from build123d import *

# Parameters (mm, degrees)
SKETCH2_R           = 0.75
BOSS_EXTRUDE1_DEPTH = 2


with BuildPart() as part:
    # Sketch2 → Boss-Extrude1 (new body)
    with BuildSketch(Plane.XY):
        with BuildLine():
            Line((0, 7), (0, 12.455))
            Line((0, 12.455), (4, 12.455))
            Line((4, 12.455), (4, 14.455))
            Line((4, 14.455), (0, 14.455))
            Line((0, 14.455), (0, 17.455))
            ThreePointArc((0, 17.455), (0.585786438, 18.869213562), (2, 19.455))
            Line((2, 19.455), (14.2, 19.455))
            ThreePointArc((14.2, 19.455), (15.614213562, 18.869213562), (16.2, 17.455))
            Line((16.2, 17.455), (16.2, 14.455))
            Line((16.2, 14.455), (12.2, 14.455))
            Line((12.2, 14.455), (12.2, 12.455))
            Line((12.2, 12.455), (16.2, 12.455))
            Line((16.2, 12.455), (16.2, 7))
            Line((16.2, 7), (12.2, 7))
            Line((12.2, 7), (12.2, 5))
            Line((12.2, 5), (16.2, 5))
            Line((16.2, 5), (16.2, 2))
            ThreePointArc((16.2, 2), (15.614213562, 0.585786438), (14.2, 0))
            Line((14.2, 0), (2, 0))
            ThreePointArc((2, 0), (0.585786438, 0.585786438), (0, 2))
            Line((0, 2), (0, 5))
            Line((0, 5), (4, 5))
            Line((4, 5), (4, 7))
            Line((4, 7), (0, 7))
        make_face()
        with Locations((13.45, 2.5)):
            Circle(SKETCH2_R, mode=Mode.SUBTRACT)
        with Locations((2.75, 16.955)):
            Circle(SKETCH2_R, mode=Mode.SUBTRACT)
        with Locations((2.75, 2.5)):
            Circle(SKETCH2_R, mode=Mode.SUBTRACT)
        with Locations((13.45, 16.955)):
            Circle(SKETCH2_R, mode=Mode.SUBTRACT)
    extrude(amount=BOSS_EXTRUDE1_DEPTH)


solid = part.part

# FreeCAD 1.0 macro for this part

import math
import FreeCAD as App
import Part
import Sketcher

V = App.Vector

doc = App.newDocument("Part")
params = doc.addObject("Spreadsheet::Sheet", "Params")
for row, (alias, value) in enumerate([
    ("sketch1_radius", "2 mm"),
    ("sketch1_diameter", "1.5 mm"),
    ("sketch1_width", "4 mm"),
    ("sketch1_height", "2 mm"),
    ("sketch1_height2", "3 mm"),
    ("pad1_length", "2 mm"),
], start=1):
    params.set(f"A{row}", alias)
    params.set(f"B{row}", "=" + value)
    params.setAlias(f"B{row}", alias)

body = doc.addObject("PartDesign::Body", "Body")

sketch1 = body.newObject("Sketcher::SketchObject", "Sketch")
sketch1.AttachmentSupport = (doc.getObject("XY_Plane"), [""])
sketch1.MapMode = "FlatFace"
sketch1.addGeometry([
    Part.LineSegment(V(0, 12.5, 0), V(0, 7, 0)),
    Part.LineSegment(V(0, 7, 0), V(4, 7, 0)),
    Part.LineSegment(V(4, 7, 0), V(4, 5, 0)),
    Part.LineSegment(V(4, 5, 0), V(0, 5, 0)),
    Part.LineSegment(V(0, 5, 0), V(0, 2, 0)),
    Part.ArcOfCircle(Part.Circle(V(2, 2, 0), V(0, 0, 1), 2), math.radians(-180), math.radians(-90)),
    Part.LineSegment(V(2, 0, 0), V(14.2, 0, 0)),
    Part.ArcOfCircle(Part.Circle(V(14.2, 2, 0), V(0, 0, 1), 2), math.radians(-90), math.radians(0)),
    Part.LineSegment(V(16.2, 2, 0), V(16.2, 5, 0)),
    Part.LineSegment(V(16.2, 5, 0), V(12.2, 5, 0)),
    Part.LineSegment(V(12.2, 5, 0), V(12.2, 7, 0)),
    Part.LineSegment(V(12.2, 7, 0), V(16.2, 7, 0)),
    Part.LineSegment(V(16.2, 7, 0), V(16.2, 12.5, 0)),
    Part.LineSegment(V(16.2, 12.5, 0), V(12.2, 12.5, 0)),
    Part.LineSegment(V(12.2, 12.5, 0), V(12.2, 14.5, 0)),
    Part.LineSegment(V(12.2, 14.5, 0), V(16.2, 14.5, 0)),
    Part.LineSegment(V(16.2, 14.5, 0), V(16.2, 17.5, 0)),
    Part.ArcOfCircle(Part.Circle(V(14.2, 17.5, 0), V(0, 0, 1), 2), math.radians(0), math.radians(90)),
    Part.LineSegment(V(14.2, 19.5, 0), V(2, 19.5, 0)),
    Part.ArcOfCircle(Part.Circle(V(2, 17.5, 0), V(0, 0, 1), 2), math.radians(90), math.radians(180)),
    Part.LineSegment(V(0, 17.5, 0), V(0, 14.5, 0)),
    Part.LineSegment(V(0, 14.5, 0), V(4, 14.5, 0)),
    Part.LineSegment(V(4, 14.5, 0), V(4, 12.5, 0)),
    Part.LineSegment(V(4, 12.5, 0), V(0, 12.5, 0)),
    Part.Circle(V(13.4, 2.5, 0), V(0, 0, 1), 0.8),
    Part.Circle(V(2.8, 2.5, 0), V(0, 0, 1), 0.8),
    Part.Circle(V(13.4, 17, 0), V(0, 0, 1), 0.8),
    Part.Circle(V(2.8, 17, 0), V(0, 0, 1), 0.8),
], False)
sketch1.addConstraint([
    Sketcher.Constraint("Coincident", 0, 2, 1, 1),
    Sketcher.Constraint("Coincident", 1, 2, 2, 1),
    Sketcher.Constraint("Coincident", 2, 2, 3, 1),
    Sketcher.Constraint("Coincident", 3, 2, 4, 1),
    Sketcher.Constraint("Tangent", 4, 2, 5, 1),
    Sketcher.Constraint("Tangent", 5, 2, 6, 1),
    Sketcher.Constraint("Tangent", 6, 2, 7, 1),
    Sketcher.Constraint("Tangent", 7, 2, 8, 1),
    Sketcher.Constraint("Coincident", 8, 2, 9, 1),
    Sketcher.Constraint("Coincident", 9, 2, 10, 1),
    Sketcher.Constraint("Coincident", 10, 2, 11, 1),
    Sketcher.Constraint("Coincident", 11, 2, 12, 1),
    Sketcher.Constraint("Coincident", 12, 2, 13, 1),
    Sketcher.Constraint("Coincident", 13, 2, 14, 1),
    Sketcher.Constraint("Coincident", 14, 2, 15, 1),
    Sketcher.Constraint("Coincident", 15, 2, 16, 1),
    Sketcher.Constraint("Tangent", 16, 2, 17, 1),
    Sketcher.Constraint("Tangent", 17, 2, 18, 1),
    Sketcher.Constraint("Tangent", 18, 2, 19, 1),
    Sketcher.Constraint("Tangent", 19, 2, 20, 1),
    Sketcher.Constraint("Coincident", 20, 2, 21, 1),
    Sketcher.Constraint("Coincident", 21, 2, 22, 1),
    Sketcher.Constraint("Coincident", 22, 2, 23, 1),
    Sketcher.Constraint("Coincident", 23, 2, 0, 1),
    Sketcher.Constraint("Vertical", 0),
    Sketcher.Constraint("Horizontal", 1),
    Sketcher.Constraint("Vertical", 2),
    Sketcher.Constraint("Horizontal", 3),
    Sketcher.Constraint("Vertical", 4),
    Sketcher.Constraint("Horizontal", 6),
    Sketcher.Constraint("Vertical", 8),
    Sketcher.Constraint("Horizontal", 9),
    Sketcher.Constraint("Vertical", 10),
    Sketcher.Constraint("Horizontal", 11),
    Sketcher.Constraint("Vertical", 12),
    Sketcher.Constraint("Horizontal", 13),
    Sketcher.Constraint("Vertical", 14),
    Sketcher.Constraint("Horizontal", 15),
    Sketcher.Constraint("Vertical", 16),
    Sketcher.Constraint("Horizontal", 18),
    Sketcher.Constraint("Vertical", 20),
    Sketcher.Constraint("Horizontal", 21),
    Sketcher.Constraint("Vertical", 22),
    Sketcher.Constraint("Horizontal", 23),
    Sketcher.Constraint("Equal", 5, 7),
    Sketcher.Constraint("Equal", 7, 17),
    Sketcher.Constraint("Equal", 17, 19),
    Sketcher.Constraint("Equal", 24, 25),
    Sketcher.Constraint("Equal", 25, 26),
    Sketcher.Constraint("Equal", 26, 27),
    Sketcher.Constraint("PointOnObject", 0, 2, -2),
    Sketcher.Constraint("PointOnObject", 3, 2, -2),
    Sketcher.Constraint("PointOnObject", 5, 2, -1),
    Sketcher.Constraint("PointOnObject", 19, 2, -2),
    Sketcher.Constraint("Horizontal", 24, 3, 25, 3),
    Sketcher.Constraint("Horizontal", 26, 3, 27, 3),
    Sketcher.Constraint("Horizontal", 3, 2, 8, 2),
    Sketcher.Constraint("Horizontal", 1, 2, 10, 2),
    Sketcher.Constraint("Horizontal", 15, 2, 20, 2),
    Sketcher.Constraint("Horizontal", 13, 2, 22, 2),
    Sketcher.Constraint("Vertical", 7, 3, 17, 3),
    Sketcher.Constraint("Vertical", 24, 3, 26, 3),
    Sketcher.Constraint("Vertical", 25, 3, 27, 3),
    Sketcher.Constraint("Vertical", 8, 2, 11, 2),
    Sketcher.Constraint("Vertical", 10, 2, 13, 2),
    Sketcher.Constraint("Vertical", 2, 2, 21, 2),
    Sketcher.Constraint("Equal", 3, 9),
    Sketcher.Constraint("Equal", 10, 14),
    Sketcher.Constraint("Equal", 8, 16),
    Sketcher.Constraint("Radius", 5, 2.0),
    Sketcher.Constraint("Diameter", 24, 1.5),
    Sketcher.Constraint("DistanceX", 1, 1, 1, 2, 4.0),
    Sketcher.Constraint("DistanceY", 2, 2, 2, 1, 2.0),
    Sketcher.Constraint("DistanceY", 4, 2, 4, 1, 3.0),
    Sketcher.Constraint("DistanceX", 6, 1, 6, 2, 12.2),
    Sketcher.Constraint("DistanceY", -1, 1, 24, 3, 2.5),
    Sketcher.Constraint("DistanceX", 25, 3, 24, 3, 10.7),
    Sketcher.Constraint("DistanceY", 26, 3, 17, 3, 0.5),
    Sketcher.Constraint("DistanceY", 0, 2, 0, 1, 5.455),
    Sketcher.Constraint("DistanceX", -1, 1, 24, 3, 13.45),
])
sketch1.setExpression("Constraints[69]", "Params.sketch1_radius")
sketch1.setExpression("Constraints[70]", "Params.sketch1_diameter")
sketch1.setExpression("Constraints[71]", "Params.sketch1_width")
sketch1.setExpression("Constraints[72]", "Params.sketch1_height")
sketch1.setExpression("Constraints[73]", "Params.sketch1_height2")
pad1 = body.newObject("PartDesign::Pad", "Pad")
pad1.Profile = sketch1
pad1.setExpression("Length", "Params.pad1_length")

doc.recompute()
